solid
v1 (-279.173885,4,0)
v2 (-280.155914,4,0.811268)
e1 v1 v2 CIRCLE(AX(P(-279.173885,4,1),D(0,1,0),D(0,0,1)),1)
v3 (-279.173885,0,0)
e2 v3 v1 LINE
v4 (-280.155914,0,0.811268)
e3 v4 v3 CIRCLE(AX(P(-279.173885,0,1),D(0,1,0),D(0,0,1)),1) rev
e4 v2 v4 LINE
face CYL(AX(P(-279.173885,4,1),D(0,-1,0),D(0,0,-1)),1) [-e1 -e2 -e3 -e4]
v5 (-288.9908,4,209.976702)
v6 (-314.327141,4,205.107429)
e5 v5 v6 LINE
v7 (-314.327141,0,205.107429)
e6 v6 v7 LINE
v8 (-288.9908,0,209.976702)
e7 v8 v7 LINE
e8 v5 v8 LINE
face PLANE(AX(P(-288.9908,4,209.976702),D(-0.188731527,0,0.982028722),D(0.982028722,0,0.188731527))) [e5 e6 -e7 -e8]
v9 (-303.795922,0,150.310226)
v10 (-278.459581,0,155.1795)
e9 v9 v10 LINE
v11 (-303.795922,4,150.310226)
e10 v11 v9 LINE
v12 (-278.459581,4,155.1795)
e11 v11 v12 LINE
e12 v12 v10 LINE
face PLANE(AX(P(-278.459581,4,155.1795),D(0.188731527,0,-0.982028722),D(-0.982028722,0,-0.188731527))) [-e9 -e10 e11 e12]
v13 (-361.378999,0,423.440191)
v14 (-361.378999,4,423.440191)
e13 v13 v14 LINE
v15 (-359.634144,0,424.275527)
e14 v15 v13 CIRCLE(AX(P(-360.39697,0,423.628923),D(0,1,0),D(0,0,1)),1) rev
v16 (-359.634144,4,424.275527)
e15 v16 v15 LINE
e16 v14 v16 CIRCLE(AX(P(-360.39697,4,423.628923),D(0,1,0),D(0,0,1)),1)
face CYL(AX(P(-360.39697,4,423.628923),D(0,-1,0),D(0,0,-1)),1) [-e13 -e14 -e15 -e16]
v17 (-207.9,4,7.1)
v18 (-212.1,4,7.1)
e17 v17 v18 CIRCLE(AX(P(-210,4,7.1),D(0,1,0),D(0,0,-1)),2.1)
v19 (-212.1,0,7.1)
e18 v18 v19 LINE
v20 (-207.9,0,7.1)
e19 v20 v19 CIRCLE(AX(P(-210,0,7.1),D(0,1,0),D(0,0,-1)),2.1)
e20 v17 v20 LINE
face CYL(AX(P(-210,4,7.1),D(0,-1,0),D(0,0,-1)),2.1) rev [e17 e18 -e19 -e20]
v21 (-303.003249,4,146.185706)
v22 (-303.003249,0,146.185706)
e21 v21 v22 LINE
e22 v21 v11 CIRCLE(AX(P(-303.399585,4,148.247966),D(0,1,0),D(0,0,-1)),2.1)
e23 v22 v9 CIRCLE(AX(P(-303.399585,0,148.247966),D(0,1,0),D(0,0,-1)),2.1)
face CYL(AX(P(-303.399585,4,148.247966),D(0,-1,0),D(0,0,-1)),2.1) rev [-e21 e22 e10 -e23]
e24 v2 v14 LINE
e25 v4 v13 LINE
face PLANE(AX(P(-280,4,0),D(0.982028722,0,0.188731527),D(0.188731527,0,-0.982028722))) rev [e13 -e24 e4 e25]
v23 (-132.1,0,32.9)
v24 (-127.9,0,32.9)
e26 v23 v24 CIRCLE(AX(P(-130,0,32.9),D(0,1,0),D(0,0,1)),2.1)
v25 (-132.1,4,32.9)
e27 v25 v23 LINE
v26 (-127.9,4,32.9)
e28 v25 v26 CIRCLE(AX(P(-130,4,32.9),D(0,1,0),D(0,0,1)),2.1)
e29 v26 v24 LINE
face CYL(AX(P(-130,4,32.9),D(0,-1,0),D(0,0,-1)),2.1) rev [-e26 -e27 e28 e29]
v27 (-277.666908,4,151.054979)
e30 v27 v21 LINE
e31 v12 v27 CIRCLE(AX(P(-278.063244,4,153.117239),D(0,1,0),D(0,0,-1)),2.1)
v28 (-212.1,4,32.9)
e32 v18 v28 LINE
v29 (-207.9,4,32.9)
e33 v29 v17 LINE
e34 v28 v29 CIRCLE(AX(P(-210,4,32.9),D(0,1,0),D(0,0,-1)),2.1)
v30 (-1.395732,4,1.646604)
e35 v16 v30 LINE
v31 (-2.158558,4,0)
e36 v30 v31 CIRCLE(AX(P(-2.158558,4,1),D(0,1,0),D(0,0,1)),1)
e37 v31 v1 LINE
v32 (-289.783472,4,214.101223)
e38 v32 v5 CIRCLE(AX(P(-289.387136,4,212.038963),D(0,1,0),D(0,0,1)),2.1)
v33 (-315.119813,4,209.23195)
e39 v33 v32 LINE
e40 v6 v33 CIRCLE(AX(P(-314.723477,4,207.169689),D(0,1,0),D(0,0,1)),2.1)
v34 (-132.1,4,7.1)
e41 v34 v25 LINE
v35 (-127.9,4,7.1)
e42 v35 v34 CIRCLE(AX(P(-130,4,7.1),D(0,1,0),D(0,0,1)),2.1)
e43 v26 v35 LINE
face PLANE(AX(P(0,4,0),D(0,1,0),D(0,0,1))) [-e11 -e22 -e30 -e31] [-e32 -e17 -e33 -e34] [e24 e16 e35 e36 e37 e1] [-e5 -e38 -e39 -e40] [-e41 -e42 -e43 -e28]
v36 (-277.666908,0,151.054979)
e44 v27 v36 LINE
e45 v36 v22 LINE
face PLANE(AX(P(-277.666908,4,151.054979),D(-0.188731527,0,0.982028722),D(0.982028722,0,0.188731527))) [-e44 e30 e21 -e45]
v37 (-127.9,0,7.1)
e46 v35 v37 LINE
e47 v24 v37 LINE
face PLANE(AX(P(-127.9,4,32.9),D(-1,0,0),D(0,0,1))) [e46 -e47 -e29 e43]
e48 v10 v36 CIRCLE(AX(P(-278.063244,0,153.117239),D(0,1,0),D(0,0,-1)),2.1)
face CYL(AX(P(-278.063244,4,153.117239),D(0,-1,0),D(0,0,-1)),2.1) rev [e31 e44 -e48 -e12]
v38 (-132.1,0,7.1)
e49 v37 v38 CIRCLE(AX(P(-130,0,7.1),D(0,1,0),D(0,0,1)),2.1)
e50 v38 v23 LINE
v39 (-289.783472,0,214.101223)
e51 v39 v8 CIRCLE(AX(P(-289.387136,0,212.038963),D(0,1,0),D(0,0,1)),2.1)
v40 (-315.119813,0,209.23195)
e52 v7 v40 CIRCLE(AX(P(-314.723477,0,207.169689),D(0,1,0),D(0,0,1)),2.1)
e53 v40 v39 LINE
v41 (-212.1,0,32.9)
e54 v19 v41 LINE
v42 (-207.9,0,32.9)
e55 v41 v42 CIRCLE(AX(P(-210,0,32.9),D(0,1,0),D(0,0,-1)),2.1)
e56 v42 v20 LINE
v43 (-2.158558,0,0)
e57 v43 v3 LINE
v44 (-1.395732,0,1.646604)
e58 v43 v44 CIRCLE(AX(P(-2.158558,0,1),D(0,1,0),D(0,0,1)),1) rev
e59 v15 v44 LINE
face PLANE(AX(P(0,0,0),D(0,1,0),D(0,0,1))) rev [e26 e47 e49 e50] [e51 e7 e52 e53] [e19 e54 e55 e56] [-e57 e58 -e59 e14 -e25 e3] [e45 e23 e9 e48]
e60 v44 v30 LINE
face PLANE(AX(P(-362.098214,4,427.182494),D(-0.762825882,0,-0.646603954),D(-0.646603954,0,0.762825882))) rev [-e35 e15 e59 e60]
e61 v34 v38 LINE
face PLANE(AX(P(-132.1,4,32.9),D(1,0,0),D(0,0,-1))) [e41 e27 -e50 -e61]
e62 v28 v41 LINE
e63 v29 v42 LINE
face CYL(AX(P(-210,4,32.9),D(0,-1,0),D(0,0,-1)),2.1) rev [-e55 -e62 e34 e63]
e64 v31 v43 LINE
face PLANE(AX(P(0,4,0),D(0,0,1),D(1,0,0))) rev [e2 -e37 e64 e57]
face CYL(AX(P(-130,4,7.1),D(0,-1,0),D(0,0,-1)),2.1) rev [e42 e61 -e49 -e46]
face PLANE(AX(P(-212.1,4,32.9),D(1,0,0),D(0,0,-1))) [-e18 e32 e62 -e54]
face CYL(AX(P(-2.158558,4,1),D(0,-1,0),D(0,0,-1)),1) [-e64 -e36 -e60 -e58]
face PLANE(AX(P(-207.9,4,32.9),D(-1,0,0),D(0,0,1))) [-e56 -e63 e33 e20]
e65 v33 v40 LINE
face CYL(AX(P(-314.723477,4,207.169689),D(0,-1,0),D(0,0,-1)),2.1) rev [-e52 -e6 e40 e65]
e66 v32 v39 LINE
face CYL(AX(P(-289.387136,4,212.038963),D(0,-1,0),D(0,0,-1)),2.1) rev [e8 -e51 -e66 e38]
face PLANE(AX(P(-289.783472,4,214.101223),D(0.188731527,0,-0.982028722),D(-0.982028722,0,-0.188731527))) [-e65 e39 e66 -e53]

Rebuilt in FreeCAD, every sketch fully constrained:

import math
import FreeCAD as App
import Part
import Sketcher
Q = App.Units.Quantity


def edges_at(feature, points):
    """Names of the edges that pass closest to the given points."""
    edges = feature.Shape.Edges
    near = lambda p: min(range(len(edges)), key=lambda i: edges[i].distToShape(Part.Vertex(*p))[0])
    return sorted({f"Edge{near(p) + 1}" for p in points})

doc = App.newDocument("Part")
params = doc.addObject("Spreadsheet::Sheet", "Params")
for row, (alias, value) in enumerate([
    ("sketch1_radius", "2.1 mm"),
    ("sketch1_width", "280 mm"),
    ("sketch1_length", "435 mm"),
    ("sketch1_length2", "560 mm"),
    ("sketch1_height", "25.8 mm"),
    ("pad1_length", "4 mm"),
    ("fillet_radius", "1 mm"),
], start=1):
    params.set(f"A{row}", alias)
    params.set(f"B{row}", "=" + value)
    params.setAlias(f"B{row}", alias)

body = doc.addObject("PartDesign::Body", "Body")

# Sketch on XZ plane
sketch1 = body.newObject("Sketcher::SketchObject", "Sketch")
sketch1.AttachmentSupport = (doc.getObject("XZ_Plane"), [""])
sketch1.MapMode = "FlatFace"
sketch1.addGeometry([
    Part.LineSegment(App.Vector(0, 0, 0), App.Vector(-280, 0, 0)),  # 0
    Part.LineSegment(App.Vector(-280, 0, 0), App.Vector(-362.1, 427.2, 0)),  # 1
    Part.LineSegment(App.Vector(-362.1, 427.2, 0), App.Vector(0, 0, 0)),  # 2
    Part.ArcOfCircle(Part.Circle(App.Vector(-130, 32.9, 0), App.Vector(0, 0, 1), 2.1), math.radians(0), math.radians(180)),  # 3
    Part.LineSegment(App.Vector(-132.1, 32.9, 0), App.Vector(-132.1, 7.1, 0)),  # 4
    Part.ArcOfCircle(Part.Circle(App.Vector(-130, 7.1, 0), App.Vector(0, 0, 1), 2.1), math.radians(180), math.radians(360)),  # 5
    Part.LineSegment(App.Vector(-127.9, 7.1, 0), App.Vector(-127.9, 32.9, 0)),  # 6
    Part.LineSegment(App.Vector(-207.9, 7.1, 0), App.Vector(-207.9, 32.9, 0)),  # 7
    Part.ArcOfCircle(Part.Circle(App.Vector(-210, 32.9, 0), App.Vector(0, 0, 1), 2.1), math.radians(0), math.radians(180)),  # 8
    Part.LineSegment(App.Vector(-212.1, 32.9, 0), App.Vector(-212.1, 7.1, 0)),  # 9
    Part.ArcOfCircle(Part.Circle(App.Vector(-210, 7.1, 0), App.Vector(0, 0, 1), 2.1), math.radians(180), math.radians(360)),  # 10
    Part.LineSegment(App.Vector(-303, 146.2, 0), App.Vector(-277.7, 151.1, 0)),  # 11
    Part.ArcOfCircle(Part.Circle(App.Vector(-278.1, 153.1, 0), App.Vector(0, 0, 1), 2.1), math.radians(-79), math.radians(101)),  # 12
    Part.LineSegment(App.Vector(-278.5, 155.2, 0), App.Vector(-303.8, 150.3, 0)),  # 13
    Part.ArcOfCircle(Part.Circle(App.Vector(-303.4, 148.2, 0), App.Vector(0, 0, 1), 2.1), math.radians(101), math.radians(281)),  # 14
    Part.ArcOfCircle(Part.Circle(App.Vector(-289.4, 212, 0), App.Vector(0, 0, 1), 2.1), math.radians(-79), math.radians(101)),  # 15
    Part.LineSegment(App.Vector(-289.8, 214.1, 0), App.Vector(-315.1, 209.2, 0)),  # 16
    Part.ArcOfCircle(Part.Circle(App.Vector(-314.7, 207.2, 0), App.Vector(0, 0, 1), 2.1), math.radians(101), math.radians(281)),  # 17
    Part.LineSegment(App.Vector(-314.3, 205.1, 0), App.Vector(-289, 210, 0)),  # 18
], False)
sketch1.addConstraint([
    Sketcher.Constraint("Coincident", 0, 2, 1, 1),
    Sketcher.Constraint("Coincident", 1, 2, 2, 1),
    Sketcher.Constraint("Coincident", 2, 2, 0, 1),
    Sketcher.Constraint("Tangent", 3, 2, 4, 1),
    Sketcher.Constraint("Tangent", 4, 2, 5, 1),
    Sketcher.Constraint("Tangent", 5, 2, 6, 1),
    Sketcher.Constraint("Tangent", 6, 2, 3, 1),
    Sketcher.Constraint("Tangent", 7, 2, 8, 1),
    Sketcher.Constraint("Tangent", 8, 2, 9, 1),
    Sketcher.Constraint("Tangent", 9, 2, 10, 1),
    Sketcher.Constraint("Tangent", 10, 2, 7, 1),
    Sketcher.Constraint("Tangent", 11, 2, 12, 1),
    Sketcher.Constraint("Tangent", 12, 2, 13, 1),
    Sketcher.Constraint("Tangent", 13, 2, 14, 1),
    Sketcher.Constraint("Tangent", 14, 2, 11, 1),
    Sketcher.Constraint("Tangent", 15, 2, 16, 1),
    Sketcher.Constraint("Tangent", 16, 2, 17, 1),
    Sketcher.Constraint("Tangent", 17, 2, 18, 1),
    Sketcher.Constraint("Tangent", 18, 2, 15, 1),
    Sketcher.Constraint("Horizontal", 0),
    Sketcher.Constraint("Vertical", 4),
    Sketcher.Constraint("Vertical", 6),
    Sketcher.Constraint("Vertical", 7),
    Sketcher.Constraint("Vertical", 9),
    Sketcher.Constraint("Coincident", 2, 2, -1, 1),
    Sketcher.Constraint("Equal", 5, 8),
    Sketcher.Constraint("Equal", 10, 12),
    Sketcher.Constraint("Equal", 12, 14),
    Sketcher.Constraint("Equal", 14, 15),
    Sketcher.Constraint("Equal", 15, 17),
    Sketcher.Constraint("Perpendicular", 1, 11),
    Sketcher.Constraint("Parallel", 13, 16),
    Sketcher.Constraint("Horizontal", 3, 3, 8, 3),
    Sketcher.Constraint("Horizontal", 5, 3, 10, 3),
    Sketcher.Constraint("Equal", 13, 16),
    Sketcher.Constraint("Radius", 3, Q("2.1 mm")),
    Sketcher.Constraint("DistanceX", 0, 2, 0, 1, Q("280 mm")),
    Sketcher.Constraint("Distance", 1, Q("435 mm")),
    Sketcher.Constraint("Distance", 2, Q("560 mm")),
    Sketcher.Constraint("DistanceY", 4, 2, 4, 1, Q("25.8 mm")),
    Sketcher.Constraint("DistanceX", 3, 3, -1, 1, Q("130 mm")),
    Sketcher.Constraint("DistanceX", 8, 3, -1, 1, Q("210 mm")),
    Sketcher.Constraint("Distance", 11, Q("25.8 mm")),
    Sketcher.Constraint("DistanceY", -1, 1, 3, 3, Q("32.9 mm")),
    Sketcher.Constraint("DistanceY", -1, 1, 12, 2, Q("155.1795 mm")),
    Sketcher.Constraint("DistanceX", 18, 2, -1, 1, Q("288.9908 mm")),
    Sketcher.Constraint("DistanceY", -1, 1, 17, 3, Q("207.169689 mm")),
    Sketcher.Constraint("DistanceX", 11, 2, -1, 1, Q("277.666908 mm")),
])
sketch1.setExpression("Constraints[35]", "Params.sketch1_radius")
sketch1.setExpression("Constraints[36]", "Params.sketch1_width")
sketch1.setExpression("Constraints[37]", "Params.sketch1_length")
sketch1.setExpression("Constraints[38]", "Params.sketch1_length2")
sketch1.setExpression("Constraints[39]", "Params.sketch1_height")
pad1 = body.newObject("PartDesign::Pad", "Pad")
pad1.Profile = sketch1
pad1.setExpression("Length", "Params.pad1_length")
pad1.Reversed = True
doc.recompute()

fillet = body.newObject("PartDesign::Fillet", "Fillet")
fillet.Base = (pad1, edges_at(pad1, [(-362.098, 2, 427.182), (-280, 2, 0), (0, 2, 0)]))
fillet.setExpression("Radius", "Params.fillet_radius")

doc.recompute()
